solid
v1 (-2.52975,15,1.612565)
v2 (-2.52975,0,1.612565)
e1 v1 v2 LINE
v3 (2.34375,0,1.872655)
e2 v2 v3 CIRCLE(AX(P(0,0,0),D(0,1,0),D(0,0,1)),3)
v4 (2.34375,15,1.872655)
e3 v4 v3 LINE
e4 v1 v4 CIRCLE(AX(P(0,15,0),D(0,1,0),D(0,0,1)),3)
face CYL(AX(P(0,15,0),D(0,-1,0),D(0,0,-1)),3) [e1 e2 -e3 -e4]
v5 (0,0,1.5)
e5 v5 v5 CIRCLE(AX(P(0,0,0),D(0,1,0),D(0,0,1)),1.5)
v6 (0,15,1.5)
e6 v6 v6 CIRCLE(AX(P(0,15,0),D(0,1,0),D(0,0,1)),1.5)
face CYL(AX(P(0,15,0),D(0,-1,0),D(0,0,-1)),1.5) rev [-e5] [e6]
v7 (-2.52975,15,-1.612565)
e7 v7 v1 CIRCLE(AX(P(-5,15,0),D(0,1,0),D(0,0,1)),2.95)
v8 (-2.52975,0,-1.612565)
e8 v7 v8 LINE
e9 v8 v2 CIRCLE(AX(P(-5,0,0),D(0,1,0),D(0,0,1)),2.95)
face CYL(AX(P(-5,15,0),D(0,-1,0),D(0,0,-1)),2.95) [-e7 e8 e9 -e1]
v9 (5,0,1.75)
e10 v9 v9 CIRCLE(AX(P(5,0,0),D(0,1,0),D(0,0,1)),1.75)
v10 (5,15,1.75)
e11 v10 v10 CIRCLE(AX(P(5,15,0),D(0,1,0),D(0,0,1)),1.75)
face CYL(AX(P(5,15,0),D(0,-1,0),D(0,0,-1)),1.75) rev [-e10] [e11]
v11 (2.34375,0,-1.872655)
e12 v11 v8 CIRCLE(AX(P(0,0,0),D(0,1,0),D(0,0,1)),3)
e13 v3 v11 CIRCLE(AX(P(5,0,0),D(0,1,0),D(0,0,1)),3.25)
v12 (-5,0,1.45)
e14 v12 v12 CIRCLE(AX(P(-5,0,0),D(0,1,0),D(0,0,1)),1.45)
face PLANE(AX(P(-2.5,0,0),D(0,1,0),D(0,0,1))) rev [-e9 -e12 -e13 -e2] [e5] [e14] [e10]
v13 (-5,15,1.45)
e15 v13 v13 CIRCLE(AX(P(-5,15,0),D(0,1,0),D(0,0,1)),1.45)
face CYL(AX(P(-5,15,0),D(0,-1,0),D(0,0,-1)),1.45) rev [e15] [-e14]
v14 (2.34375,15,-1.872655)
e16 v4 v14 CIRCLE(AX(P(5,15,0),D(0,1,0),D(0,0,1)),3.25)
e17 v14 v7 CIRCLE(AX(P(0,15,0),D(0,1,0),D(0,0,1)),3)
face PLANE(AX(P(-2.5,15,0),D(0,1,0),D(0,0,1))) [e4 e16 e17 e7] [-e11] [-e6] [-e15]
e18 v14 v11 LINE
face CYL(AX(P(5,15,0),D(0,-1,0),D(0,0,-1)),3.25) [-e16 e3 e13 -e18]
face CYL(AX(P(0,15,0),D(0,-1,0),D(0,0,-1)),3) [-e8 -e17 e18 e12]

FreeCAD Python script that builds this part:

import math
import FreeCAD as App
import Part
import Sketcher

V = App.Vector

doc = App.newDocument("Part")
body = doc.addObject("PartDesign::Body", "Body")

# Sketch on XZ plane
sketch1 = body.newObject("Sketcher::SketchObject", "Sketch")
sketch1.AttachmentSupport = (doc.getObject("XZ_Plane"), [""])
sketch1.MapMode = "FlatFace"
sketch1.addGeometry(Part.ArcOfCircle(Part.Circle(V(-5, 0, 0), V(0, 0, 1), 3), math.radians(33), math.radians(327)), False)
sketch1.addGeometry(Part.ArcOfCircle(Part.Circle(V(0, 0, 0), V(0, 0, 1), 3), math.radians(39), math.radians(147)), False)
sketch1.addGeometry(Part.ArcOfCircle(Part.Circle(V(5, 0, 0), V(0, 0, 1), 3.2), math.radians(-145), math.radians(145)), False)
sketch1.addGeometry(Part.ArcOfCircle(Part.Circle(V(0, 0, 0), V(0, 0, 1), 3), math.radians(-147), math.radians(-39)), False)
sketch1.addGeometry(Part.Circle(V(-5, 0, 0), V(0, 0, 1), 1.4), False)
sketch1.addGeometry(Part.Circle(V(0, 0, 0), V(0, 0, 1), 1.5), False)
sketch1.addGeometry(Part.Circle(V(5, 0, 0), V(0, 0, 1), 1.8), False)
sketch1.addConstraint(Sketcher.Constraint("Coincident", 0, 1, 1, 2))
sketch1.addConstraint(Sketcher.Constraint("Coincident", 1, 1, 2, 2))
sketch1.addConstraint(Sketcher.Constraint("Coincident", 2, 1, 3, 2))
sketch1.addConstraint(Sketcher.Constraint("Coincident", 3, 1, 0, 2))
sketch1.addConstraint(Sketcher.Constraint("Coincident", 1, 3, -1, 1))
sketch1.addConstraint(Sketcher.Constraint("Coincident", 3, 3, -1, 1))
sketch1.addConstraint(Sketcher.Constraint("Coincident", 5, 3, -1, 1))
sketch1.addConstraint(Sketcher.Constraint("Coincident", 4, 3, 0, 3))
sketch1.addConstraint(Sketcher.Constraint("Coincident", 6, 3, 2, 3))
sketch1.addConstraint(Sketcher.Constraint("Equal", 1, 3))
sketch1.addConstraint(Sketcher.Constraint("Symmetric", 0, 3, 2, 3, -1, 1))
sketch1.addConstraint(Sketcher.Constraint("PointOnObject", 0, 3, -1))
sketch1.addConstraint(Sketcher.Constraint("Diameter", 5, 3.0))
sketch1.addConstraint(Sketcher.Constraint("Radius", 1, 3.0))
sketch1.addConstraint(Sketcher.Constraint("Diameter", 4, 2.9))
sketch1.addConstraint(Sketcher.Constraint("Diameter", 6, 3.5))
sketch1.addConstraint(Sketcher.Constraint("Radius", 0, 2.95))
sketch1.addConstraint(Sketcher.Constraint("Radius", 2, 3.25))
sketch1.addConstraint(Sketcher.Constraint("DistanceX", 0, 3, -1, 1, 5.0))
pad1 = body.newObject("PartDesign::Pad", "Pad")
pad1.Profile = sketch1
pad1.Length = 15
pad1.Reversed = True

doc.recompute()
